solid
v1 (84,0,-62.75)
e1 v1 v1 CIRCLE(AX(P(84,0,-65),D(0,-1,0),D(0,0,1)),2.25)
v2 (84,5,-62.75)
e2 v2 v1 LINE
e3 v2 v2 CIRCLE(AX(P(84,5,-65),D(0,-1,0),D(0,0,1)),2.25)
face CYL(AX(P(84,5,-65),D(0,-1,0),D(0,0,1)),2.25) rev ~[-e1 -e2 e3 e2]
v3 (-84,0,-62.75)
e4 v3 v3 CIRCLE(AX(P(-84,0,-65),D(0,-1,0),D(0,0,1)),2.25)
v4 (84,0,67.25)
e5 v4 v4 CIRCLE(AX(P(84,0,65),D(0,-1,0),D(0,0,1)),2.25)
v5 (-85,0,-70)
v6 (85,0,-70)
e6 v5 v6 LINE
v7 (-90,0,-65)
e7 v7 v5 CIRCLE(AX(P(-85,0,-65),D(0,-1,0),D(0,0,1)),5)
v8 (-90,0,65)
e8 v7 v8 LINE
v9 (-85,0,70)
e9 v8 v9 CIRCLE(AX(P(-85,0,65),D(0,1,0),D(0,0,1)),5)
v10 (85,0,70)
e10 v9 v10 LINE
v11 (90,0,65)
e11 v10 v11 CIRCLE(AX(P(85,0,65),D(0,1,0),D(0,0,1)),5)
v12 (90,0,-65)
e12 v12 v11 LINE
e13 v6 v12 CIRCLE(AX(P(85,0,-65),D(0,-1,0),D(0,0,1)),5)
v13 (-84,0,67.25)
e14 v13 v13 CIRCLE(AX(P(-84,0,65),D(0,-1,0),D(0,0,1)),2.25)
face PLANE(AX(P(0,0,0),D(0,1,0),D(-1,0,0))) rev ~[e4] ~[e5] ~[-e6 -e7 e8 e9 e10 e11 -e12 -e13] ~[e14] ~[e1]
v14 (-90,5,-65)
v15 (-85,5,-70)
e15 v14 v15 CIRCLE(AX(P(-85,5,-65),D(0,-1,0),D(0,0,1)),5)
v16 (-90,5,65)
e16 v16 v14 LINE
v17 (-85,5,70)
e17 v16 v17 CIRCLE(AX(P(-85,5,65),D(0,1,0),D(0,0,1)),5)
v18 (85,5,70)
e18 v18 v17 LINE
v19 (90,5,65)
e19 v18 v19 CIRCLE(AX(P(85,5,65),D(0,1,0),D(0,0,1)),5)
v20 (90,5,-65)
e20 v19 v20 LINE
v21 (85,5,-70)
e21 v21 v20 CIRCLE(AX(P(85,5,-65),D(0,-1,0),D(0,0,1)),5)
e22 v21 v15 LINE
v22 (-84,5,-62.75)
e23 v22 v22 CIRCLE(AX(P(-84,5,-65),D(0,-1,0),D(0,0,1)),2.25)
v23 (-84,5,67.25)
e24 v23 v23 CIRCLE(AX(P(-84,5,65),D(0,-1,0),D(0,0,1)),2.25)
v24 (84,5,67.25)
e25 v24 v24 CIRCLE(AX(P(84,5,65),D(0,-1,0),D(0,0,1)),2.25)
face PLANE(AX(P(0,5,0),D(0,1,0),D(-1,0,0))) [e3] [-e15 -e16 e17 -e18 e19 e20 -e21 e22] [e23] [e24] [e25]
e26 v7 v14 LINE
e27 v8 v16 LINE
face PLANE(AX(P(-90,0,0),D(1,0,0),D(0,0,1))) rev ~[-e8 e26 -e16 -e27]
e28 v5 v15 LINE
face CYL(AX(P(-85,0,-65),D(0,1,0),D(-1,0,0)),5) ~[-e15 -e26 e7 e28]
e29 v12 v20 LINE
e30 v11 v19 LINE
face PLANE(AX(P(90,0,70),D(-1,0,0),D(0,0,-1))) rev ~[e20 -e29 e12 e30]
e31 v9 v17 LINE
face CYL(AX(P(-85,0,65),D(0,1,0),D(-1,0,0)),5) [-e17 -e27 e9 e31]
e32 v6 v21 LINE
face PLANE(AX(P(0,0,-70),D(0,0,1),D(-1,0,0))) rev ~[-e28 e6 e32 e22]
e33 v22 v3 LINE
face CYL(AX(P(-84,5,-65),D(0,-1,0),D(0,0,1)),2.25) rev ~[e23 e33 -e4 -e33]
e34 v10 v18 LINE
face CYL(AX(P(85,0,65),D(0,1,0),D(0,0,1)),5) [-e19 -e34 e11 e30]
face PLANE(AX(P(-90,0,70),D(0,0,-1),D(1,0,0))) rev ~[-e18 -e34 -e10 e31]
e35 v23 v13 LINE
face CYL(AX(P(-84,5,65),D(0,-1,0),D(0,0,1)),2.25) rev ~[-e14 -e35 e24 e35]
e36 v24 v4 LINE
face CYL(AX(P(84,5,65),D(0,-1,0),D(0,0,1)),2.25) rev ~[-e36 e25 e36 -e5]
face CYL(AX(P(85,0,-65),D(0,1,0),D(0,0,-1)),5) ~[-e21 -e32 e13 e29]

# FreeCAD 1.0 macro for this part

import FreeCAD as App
import Part
import Sketcher


def edges_at(feature, points):
    """Names of the edges that pass closest to the given points."""
    edges = feature.Shape.Edges
    near = lambda p: min(range(len(edges)), key=lambda i: edges[i].distToShape(Part.Vertex(*p))[0])
    return sorted({f"Edge{near(p) + 1}" for p in points})

doc = App.newDocument("Part")
params = doc.addObject("Spreadsheet::Sheet", "Params")
for row, (alias, value) in enumerate([
    ("sketch1_width", "180 mm"),
    ("sketch1_height", "140 mm"),
    ("pad1_length", "5 mm"),
    ("fillet_radius", "5 mm"),
    ("sketch2_diameter", "4.5 mm"),
    ("hole_diameter", "4.5 mm"),
], start=1):
    params.set(f"A{row}", alias)
    params.set(f"B{row}", "=" + value)
    params.setAlias(f"B{row}", alias)

body = doc.addObject("PartDesign::Body", "Body")

sketch1 = body.newObject("Sketcher::SketchObject", "Sketch")
sketch1.AttachmentSupport = (doc.getObject("XZ_Plane"), [""])
sketch1.MapMode = "FlatFace"
sketch1.addGeometry([
    Part.LineSegment(App.Vector(-90, 70, 0), App.Vector(90, 70, 0)),
    Part.LineSegment(App.Vector(90, 70, 0), App.Vector(90, -70, 0)),
    Part.LineSegment(App.Vector(90, -70, 0), App.Vector(-90, -70, 0)),
    Part.LineSegment(App.Vector(-90, -70, 0), App.Vector(-90, 70, 0)),
], False)
sketch1.addConstraint([
    Sketcher.Constraint("Coincident", 0, 2, 1, 1),
    Sketcher.Constraint("Coincident", 1, 2, 2, 1),
    Sketcher.Constraint("Coincident", 2, 2, 3, 1),
    Sketcher.Constraint("Coincident", 3, 2, 0, 1),
    Sketcher.Constraint("Horizontal", 0),
    Sketcher.Constraint("Vertical", 1),
    Sketcher.Constraint("Horizontal", 2),
    Sketcher.Constraint("Vertical", 3),
    Sketcher.Constraint("Symmetric", 0, 2, 2, 2, -1, 1),
    Sketcher.Constraint("DistanceX", 0, 1, 0, 2, 180.0),
    Sketcher.Constraint("DistanceY", 1, 2, 1, 1, 140.0),
])
sketch1.setExpression("Constraints[9]", "Params.sketch1_width")
sketch1.setExpression("Constraints[10]", "Params.sketch1_height")
pad1 = body.newObject("PartDesign::Pad", "Pad")
pad1.Profile = sketch1
pad1.setExpression("Length", "Params.pad1_length")
pad1.Reversed = True
doc.recompute()

fillet = body.newObject("PartDesign::Fillet", "Fillet")
fillet.Base = (pad1, edges_at(pad1, [
    (90, 2.5, -70),
    (90, 2.5, 70),
    (-90, 2.5, 70),
    (-90, 2.5, -70),
]))
fillet.setExpression("Radius", "Params.fillet_radius")

sketch2 = body.newObject("Sketcher::SketchObject", "Sketch001")
sketch2.AttachmentSupport = (doc.getObject("XZ_Plane"), [""])
sketch2.MapMode = "FlatFace"
sketch2.AttachmentOffset = App.Placement(App.Vector(0, 0, -5), App.Rotation())
sketch2.addGeometry([
    Part.Circle(App.Vector(-84, 65, 0), App.Vector(0, 0, 1), 2.25),
    Part.Circle(App.Vector(84, 65, 0), App.Vector(0, 0, 1), 2.25),
    Part.Circle(App.Vector(-84, -65, 0), App.Vector(0, 0, 1), 2.25),
    Part.Circle(App.Vector(84, -65, 0), App.Vector(0, 0, 1), 2.25),
], False)
sketch2.addConstraint([
    Sketcher.Constraint("Equal", 0, 1),
    Sketcher.Constraint("Equal", 1, 2),
    Sketcher.Constraint("Equal", 2, 3),
    Sketcher.Constraint("Symmetric", 1, 3, 2, 3, -1, 1),
    Sketcher.Constraint("Symmetric", 0, 3, 3, 3, -1, 1),
    Sketcher.Constraint("Symmetric", 0, 3, 1, 3, -2),
    Sketcher.Constraint("Diameter", 0, 4.5),
    Sketcher.Constraint("DistanceX", 0, 3, -1, 1, 84.0),
    Sketcher.Constraint("DistanceY", -1, 1, 0, 3, 65.0),
])
sketch2.setExpression("Constraints[6]", "Params.sketch2_diameter")
doc.recompute()
hole = body.newObject("PartDesign::Hole", "Hole")
hole.Profile = sketch2
hole.ThreadType = "None"
hole.setExpression("Diameter", "Params.hole_diameter")
hole.DepthType = "ThroughAll"
hole.Reversed = True

doc.recompute()
